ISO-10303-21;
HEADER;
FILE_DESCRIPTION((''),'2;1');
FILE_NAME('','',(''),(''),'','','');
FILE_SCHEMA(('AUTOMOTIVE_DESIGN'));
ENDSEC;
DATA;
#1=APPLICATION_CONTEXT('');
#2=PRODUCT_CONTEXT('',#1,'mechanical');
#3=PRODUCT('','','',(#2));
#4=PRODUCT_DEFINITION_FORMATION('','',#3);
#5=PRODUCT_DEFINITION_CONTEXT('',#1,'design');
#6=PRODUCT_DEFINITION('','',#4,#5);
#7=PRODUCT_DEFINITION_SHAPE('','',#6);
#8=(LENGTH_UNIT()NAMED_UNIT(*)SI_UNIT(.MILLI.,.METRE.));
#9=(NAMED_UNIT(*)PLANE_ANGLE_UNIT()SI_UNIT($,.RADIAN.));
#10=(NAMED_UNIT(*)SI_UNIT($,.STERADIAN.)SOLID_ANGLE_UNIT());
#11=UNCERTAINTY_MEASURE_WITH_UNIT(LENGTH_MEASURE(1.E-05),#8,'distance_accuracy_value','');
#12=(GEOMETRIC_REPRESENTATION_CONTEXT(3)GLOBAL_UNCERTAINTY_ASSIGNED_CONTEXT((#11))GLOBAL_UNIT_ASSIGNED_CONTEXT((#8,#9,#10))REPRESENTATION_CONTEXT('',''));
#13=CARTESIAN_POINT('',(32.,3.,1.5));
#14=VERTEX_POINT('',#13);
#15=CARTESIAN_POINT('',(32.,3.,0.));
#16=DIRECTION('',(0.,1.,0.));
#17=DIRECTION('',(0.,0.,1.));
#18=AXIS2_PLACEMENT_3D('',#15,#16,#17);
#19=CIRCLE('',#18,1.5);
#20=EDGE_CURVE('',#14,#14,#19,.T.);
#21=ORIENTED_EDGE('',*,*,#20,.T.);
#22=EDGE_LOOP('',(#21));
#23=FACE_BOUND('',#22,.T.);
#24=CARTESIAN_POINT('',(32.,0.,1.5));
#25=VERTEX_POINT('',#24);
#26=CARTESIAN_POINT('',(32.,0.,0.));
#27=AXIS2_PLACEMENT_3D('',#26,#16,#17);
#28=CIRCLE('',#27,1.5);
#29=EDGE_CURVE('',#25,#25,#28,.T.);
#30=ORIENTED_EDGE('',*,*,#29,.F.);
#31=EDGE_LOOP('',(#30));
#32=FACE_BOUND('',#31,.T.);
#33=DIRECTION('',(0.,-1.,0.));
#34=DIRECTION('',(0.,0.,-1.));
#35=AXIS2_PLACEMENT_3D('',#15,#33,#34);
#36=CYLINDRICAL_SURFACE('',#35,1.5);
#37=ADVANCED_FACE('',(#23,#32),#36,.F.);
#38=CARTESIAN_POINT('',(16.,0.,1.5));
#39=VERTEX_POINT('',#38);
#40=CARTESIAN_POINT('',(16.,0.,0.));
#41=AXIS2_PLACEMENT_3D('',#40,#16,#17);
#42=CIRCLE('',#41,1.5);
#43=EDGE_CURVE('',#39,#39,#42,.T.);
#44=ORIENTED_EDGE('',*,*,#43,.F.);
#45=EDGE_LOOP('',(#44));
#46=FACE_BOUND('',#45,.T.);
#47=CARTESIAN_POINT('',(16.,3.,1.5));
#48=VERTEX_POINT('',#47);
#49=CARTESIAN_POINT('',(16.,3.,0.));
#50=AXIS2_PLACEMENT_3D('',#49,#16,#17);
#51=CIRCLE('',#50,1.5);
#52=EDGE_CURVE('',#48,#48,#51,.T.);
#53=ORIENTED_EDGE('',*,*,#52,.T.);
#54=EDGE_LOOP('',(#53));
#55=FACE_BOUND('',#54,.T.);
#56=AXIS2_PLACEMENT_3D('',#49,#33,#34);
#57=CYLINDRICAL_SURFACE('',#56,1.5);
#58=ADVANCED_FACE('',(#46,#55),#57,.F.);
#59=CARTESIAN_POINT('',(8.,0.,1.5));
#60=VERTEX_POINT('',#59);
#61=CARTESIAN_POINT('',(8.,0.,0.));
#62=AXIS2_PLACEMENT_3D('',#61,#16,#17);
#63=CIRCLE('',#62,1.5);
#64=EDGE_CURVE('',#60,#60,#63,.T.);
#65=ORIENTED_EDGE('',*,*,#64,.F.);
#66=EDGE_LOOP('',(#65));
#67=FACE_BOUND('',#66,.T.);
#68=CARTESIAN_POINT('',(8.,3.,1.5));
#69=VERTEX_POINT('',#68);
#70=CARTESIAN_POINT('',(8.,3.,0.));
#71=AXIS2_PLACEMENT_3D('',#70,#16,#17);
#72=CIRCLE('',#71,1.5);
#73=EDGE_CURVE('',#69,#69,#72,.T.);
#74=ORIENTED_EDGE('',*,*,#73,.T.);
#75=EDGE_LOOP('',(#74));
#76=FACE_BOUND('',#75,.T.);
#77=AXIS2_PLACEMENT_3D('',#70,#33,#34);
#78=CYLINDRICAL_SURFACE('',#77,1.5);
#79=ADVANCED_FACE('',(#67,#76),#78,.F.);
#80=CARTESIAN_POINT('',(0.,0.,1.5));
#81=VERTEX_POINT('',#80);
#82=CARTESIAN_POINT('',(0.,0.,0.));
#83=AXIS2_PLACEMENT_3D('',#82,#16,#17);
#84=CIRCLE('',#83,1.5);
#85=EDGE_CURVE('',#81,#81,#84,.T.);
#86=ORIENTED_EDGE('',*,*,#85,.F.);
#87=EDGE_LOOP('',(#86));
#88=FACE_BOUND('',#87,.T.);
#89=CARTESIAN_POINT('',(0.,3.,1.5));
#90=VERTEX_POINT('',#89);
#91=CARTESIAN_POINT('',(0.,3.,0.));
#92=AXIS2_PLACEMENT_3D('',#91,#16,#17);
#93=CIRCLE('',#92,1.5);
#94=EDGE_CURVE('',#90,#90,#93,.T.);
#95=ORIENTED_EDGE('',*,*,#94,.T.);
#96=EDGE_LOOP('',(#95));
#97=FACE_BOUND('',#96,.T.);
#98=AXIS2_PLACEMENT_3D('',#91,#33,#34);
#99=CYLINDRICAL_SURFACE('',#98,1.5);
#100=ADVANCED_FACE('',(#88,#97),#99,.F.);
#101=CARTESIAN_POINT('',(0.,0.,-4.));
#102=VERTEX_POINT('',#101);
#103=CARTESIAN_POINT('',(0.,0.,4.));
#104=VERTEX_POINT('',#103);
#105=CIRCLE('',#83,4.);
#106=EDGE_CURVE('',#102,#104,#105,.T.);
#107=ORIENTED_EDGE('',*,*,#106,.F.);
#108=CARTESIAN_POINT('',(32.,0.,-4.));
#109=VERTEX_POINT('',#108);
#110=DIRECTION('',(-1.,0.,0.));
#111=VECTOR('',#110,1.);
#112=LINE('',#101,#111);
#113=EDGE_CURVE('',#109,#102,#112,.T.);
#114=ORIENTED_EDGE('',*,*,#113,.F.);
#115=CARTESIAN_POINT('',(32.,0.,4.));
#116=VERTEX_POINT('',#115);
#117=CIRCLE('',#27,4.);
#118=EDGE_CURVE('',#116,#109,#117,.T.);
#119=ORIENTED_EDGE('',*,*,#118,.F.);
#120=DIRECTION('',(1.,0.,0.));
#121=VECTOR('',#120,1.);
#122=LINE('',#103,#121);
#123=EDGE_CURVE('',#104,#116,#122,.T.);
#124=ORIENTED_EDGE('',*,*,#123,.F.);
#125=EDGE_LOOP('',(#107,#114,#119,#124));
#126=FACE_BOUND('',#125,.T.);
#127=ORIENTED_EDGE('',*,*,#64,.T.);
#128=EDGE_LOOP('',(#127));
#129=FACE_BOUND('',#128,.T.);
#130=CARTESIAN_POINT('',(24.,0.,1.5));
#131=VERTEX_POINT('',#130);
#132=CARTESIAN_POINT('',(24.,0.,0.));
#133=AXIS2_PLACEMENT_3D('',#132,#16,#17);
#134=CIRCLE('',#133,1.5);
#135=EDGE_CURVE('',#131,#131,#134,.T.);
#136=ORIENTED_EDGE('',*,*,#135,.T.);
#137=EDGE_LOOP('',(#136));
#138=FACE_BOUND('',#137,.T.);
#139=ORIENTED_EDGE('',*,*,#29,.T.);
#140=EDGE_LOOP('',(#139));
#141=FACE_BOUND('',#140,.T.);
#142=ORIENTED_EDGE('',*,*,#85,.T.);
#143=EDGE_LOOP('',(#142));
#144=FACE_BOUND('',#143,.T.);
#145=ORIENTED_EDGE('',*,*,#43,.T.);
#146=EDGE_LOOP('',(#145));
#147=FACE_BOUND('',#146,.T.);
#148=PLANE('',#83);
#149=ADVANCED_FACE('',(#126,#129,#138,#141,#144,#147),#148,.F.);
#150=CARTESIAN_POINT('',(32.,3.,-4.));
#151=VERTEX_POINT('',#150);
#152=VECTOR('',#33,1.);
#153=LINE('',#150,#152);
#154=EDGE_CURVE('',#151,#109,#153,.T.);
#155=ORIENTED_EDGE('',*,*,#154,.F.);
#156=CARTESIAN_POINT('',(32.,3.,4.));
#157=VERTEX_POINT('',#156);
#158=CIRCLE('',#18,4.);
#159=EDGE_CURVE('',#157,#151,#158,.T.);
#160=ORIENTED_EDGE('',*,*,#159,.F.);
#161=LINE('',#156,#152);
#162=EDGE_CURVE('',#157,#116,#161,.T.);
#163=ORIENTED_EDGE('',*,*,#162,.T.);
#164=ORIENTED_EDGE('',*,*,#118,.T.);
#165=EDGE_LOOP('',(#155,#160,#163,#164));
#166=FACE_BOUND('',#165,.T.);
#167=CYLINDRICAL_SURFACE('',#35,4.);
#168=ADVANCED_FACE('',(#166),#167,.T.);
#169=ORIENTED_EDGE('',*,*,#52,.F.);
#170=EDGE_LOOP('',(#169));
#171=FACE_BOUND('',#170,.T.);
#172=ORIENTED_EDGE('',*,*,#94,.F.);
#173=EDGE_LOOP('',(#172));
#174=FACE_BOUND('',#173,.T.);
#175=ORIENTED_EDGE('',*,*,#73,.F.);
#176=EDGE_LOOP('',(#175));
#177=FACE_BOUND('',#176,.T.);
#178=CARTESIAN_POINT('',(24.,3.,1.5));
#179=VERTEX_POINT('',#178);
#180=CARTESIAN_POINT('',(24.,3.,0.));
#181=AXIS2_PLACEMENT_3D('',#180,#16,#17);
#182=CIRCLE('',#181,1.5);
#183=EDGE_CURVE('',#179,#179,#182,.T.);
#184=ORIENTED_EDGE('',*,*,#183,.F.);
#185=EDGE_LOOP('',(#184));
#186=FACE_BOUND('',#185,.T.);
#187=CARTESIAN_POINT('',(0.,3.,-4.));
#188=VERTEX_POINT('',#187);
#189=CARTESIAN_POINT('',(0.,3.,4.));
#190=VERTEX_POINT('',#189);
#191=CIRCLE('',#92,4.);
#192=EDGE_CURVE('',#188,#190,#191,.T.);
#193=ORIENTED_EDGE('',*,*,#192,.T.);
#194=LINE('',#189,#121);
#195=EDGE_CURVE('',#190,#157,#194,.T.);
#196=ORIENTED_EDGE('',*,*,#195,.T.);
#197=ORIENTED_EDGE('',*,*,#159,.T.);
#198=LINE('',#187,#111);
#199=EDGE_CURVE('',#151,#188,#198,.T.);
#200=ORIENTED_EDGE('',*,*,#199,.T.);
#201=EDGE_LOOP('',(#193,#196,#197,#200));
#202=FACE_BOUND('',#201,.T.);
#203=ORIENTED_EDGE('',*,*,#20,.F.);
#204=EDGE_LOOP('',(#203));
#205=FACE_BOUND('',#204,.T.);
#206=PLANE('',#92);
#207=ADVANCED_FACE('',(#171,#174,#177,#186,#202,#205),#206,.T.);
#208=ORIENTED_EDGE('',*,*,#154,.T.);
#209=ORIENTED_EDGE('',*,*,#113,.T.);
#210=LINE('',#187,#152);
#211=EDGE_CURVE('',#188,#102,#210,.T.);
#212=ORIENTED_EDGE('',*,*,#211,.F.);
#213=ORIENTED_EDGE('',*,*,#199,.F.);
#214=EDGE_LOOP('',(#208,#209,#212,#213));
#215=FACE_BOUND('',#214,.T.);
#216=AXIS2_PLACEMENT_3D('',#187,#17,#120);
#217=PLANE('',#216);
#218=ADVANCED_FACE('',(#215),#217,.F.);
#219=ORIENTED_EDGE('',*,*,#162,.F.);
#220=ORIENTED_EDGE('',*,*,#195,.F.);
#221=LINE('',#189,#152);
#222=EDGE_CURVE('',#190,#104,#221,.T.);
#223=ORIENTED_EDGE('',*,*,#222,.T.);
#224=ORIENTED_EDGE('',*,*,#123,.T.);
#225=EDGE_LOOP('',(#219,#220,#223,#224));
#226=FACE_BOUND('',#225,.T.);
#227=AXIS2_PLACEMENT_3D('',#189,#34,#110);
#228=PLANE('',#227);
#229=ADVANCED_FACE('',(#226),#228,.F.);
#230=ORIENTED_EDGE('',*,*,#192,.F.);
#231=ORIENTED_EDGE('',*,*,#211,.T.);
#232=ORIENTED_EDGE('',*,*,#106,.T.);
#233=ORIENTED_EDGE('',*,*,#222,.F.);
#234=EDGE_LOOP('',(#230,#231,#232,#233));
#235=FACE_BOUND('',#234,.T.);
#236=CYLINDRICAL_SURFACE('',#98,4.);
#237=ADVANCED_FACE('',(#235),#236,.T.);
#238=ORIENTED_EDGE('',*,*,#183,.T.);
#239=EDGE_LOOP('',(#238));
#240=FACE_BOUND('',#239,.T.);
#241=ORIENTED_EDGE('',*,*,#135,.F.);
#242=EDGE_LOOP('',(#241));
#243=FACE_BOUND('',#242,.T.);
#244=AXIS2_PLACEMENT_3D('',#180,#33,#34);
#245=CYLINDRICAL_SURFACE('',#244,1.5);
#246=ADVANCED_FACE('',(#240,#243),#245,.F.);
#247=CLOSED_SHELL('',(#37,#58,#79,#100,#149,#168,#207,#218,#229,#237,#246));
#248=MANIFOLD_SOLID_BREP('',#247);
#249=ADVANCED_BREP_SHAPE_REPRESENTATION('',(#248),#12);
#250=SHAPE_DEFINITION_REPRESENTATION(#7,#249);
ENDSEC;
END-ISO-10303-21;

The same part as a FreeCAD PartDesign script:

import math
import FreeCAD as App
import Part
import Sketcher
from FreeCAD import Vector

doc = App.newDocument("Part")
body = doc.addObject("PartDesign::Body", "Body")

sketch1 = body.newObject("Sketcher::SketchObject", "Sketch")
sketch1.AttachmentSupport = (doc.getObject("XZ_Plane"), [""])
sketch1.MapMode = "FlatFace"
sketch1.addGeometry(Part.Circle(Vector(40, 0, 0), Vector(0, 0, 1), 1.5), False)
sketch1.addConstraint([
    Sketcher.Constraint("PointOnObject", 0, 3, -1),
    Sketcher.Constraint("Diameter", 0, 3.0),
    Sketcher.Constraint("DistanceX", -1, 1, 0, 3, 40.0),
])
pad1 = body.newObject("PartDesign::Pad", "Pad")
pad1.Profile = sketch1
pad1.Length = 3
pad1.Reversed = True
body2 = doc.addObject("PartDesign::Body", "Body001")

sketch2 = body2.newObject("Sketcher::SketchObject", "Sketch001")
sketch2.AttachmentSupport = (doc.getObject("XZ_Plane001"), [""])
sketch2.MapMode = "FlatFace"
sketch2.addGeometry(Part.Circle(Vector(48, 0, 0), Vector(0, 0, 1), 1.5), False)
sketch2.addConstraint([
    Sketcher.Constraint("PointOnObject", 0, 3, -1),
    Sketcher.Constraint("Diameter", 0, 3.0),
    Sketcher.Constraint("DistanceX", -1, 1, 0, 3, 48.0),
])
pad2 = body2.newObject("PartDesign::Pad", "Pad001")
pad2.Profile = sketch2
pad2.Length = 3
pad2.Reversed = True
body3 = doc.addObject("PartDesign::Body", "Body002")

sketch3 = body3.newObject("Sketcher::SketchObject", "Sketch002")
sketch3.AttachmentSupport = (doc.getObject("XZ_Plane002"), [""])
sketch3.MapMode = "FlatFace"
sketch3.addGeometry(Part.Circle(Vector(56, 0, 0), Vector(0, 0, 1), 1.5), False)
sketch3.addConstraint([
    Sketcher.Constraint("PointOnObject", 0, 3, -1),
    Sketcher.Constraint("Diameter", 0, 3.0),
    Sketcher.Constraint("DistanceX", -1, 1, 0, 3, 56.0),
])
pad3 = body3.newObject("PartDesign::Pad", "Pad002")
pad3.Profile = sketch3
pad3.Length = 3
pad3.Reversed = True
body4 = doc.addObject("PartDesign::Body", "Body003")

sketch4 = body4.newObject("Sketcher::SketchObject", "Sketch003")
sketch4.AttachmentSupport = (doc.getObject("XZ_Plane003"), [""])
sketch4.MapMode = "FlatFace"
sketch4.addGeometry(Part.Circle(Vector(64, 0, 0), Vector(0, 0, 1), 1.5), False)
sketch4.addConstraint([
    Sketcher.Constraint("PointOnObject", 0, 3, -1),
    Sketcher.Constraint("Diameter", 0, 3.0),
    Sketcher.Constraint("DistanceX", -1, 1, 0, 3, 64.0),
])
pad4 = body4.newObject("PartDesign::Pad", "Pad003")
pad4.Profile = sketch4
pad4.Length = 3
pad4.Reversed = True
body5 = doc.addObject("PartDesign::Body", "Body004")

sketch5 = body5.newObject("Sketcher::SketchObject", "Sketch004")
sketch5.AttachmentSupport = (doc.getObject("XZ_Plane004"), [""])
sketch5.MapMode = "FlatFace"
sketch5.addGeometry(Part.Circle(Vector(72, 0, 0), Vector(0, 0, 1), 1.5), False)
sketch5.addConstraint([
    Sketcher.Constraint("PointOnObject", 0, 3, -1),
    Sketcher.Constraint("Diameter", 0, 3.0),
    Sketcher.Constraint("DistanceX", -1, 1, 0, 3, 72.0),
])
pad5 = body5.newObject("PartDesign::Pad", "Pad004")
pad5.Profile = sketch5
pad5.Length = 3
pad5.Reversed = True
body6 = doc.addObject("PartDesign::Body", "Body005")

sketch6 = body6.newObject("Sketcher::SketchObject", "Sketch005")
sketch6.AttachmentSupport = (doc.getObject("XZ_Plane005"), [""])
sketch6.MapMode = "FlatFace"
sketch6.addGeometry(Part.Circle(Vector(80, 0, 0), Vector(0, 0, 1), 1.5), False)
sketch6.addConstraint([
    Sketcher.Constraint("PointOnObject", 0, 3, -1),
    Sketcher.Constraint("Diameter", 0, 3.0),
    Sketcher.Constraint("DistanceX", -1, 1, 0, 3, 80.0),
])
pad6 = body6.newObject("PartDesign::Pad", "Pad005")
pad6.Profile = sketch6
pad6.Length = 3
pad6.Reversed = True
body7 = doc.addObject("PartDesign::Body", "Body006")

sketch7 = body7.newObject("Sketcher::SketchObject", "Sketch006")
sketch7.AttachmentSupport = (doc.getObject("XZ_Plane006"), [""])
sketch7.MapMode = "FlatFace"
sketch7.addGeometry([
    Part.LineSegment(Vector(32, -4, 0), Vector(0, -4, 0)),
    Part.ArcOfCircle(Part.Circle(Vector(0, 0, 0), Vector(0, 0, 1), 4), math.radians(90), math.radians(270)),
    Part.LineSegment(Vector(0, 4, 0), Vector(32, 4, 0)),
    Part.ArcOfCircle(Part.Circle(Vector(32, 0, 0), Vector(0, 0, 1), 4), math.radians(-90), math.radians(90)),
    Part.Circle(Vector(32, 0, 0), Vector(0, 0, 1), 1.5),
    Part.Circle(Vector(24, 0, 0), Vector(0, 0, 1), 1.5),
    Part.Circle(Vector(16, 0, 0), Vector(0, 0, 1), 1.5),
    Part.Circle(Vector(8, 0, 0), Vector(0, 0, 1), 1.5),
    Part.Circle(Vector(0, 0, 0), Vector(0, 0, 1), 1.5),
], False)
sketch7.addConstraint([
    Sketcher.Constraint("Tangent", 0, 2, 1, 2),
    Sketcher.Constraint("Tangent", 1, 1, 2, 1),
    Sketcher.Constraint("Tangent", 2, 2, 3, 2),
    Sketcher.Constraint("Tangent", 3, 1, 0, 1),
    Sketcher.Constraint("Horizontal", 0),
    Sketcher.Constraint("Horizontal", 2),
    Sketcher.Constraint("Coincident", 1, 3, -1, 1),
    Sketcher.Constraint("Coincident", 8, 3, -1, 1),
    Sketcher.Constraint("Coincident", 4, 3, 3, 3),
    Sketcher.Constraint("Equal", 4, 5),
    Sketcher.Constraint("Equal", 5, 6),
    Sketcher.Constraint("Equal", 6, 7),
    Sketcher.Constraint("Equal", 7, 8),
    Sketcher.Constraint("PointOnObject", 5, 3, -1),
    Sketcher.Constraint("PointOnObject", 6, 3, -1),
    Sketcher.Constraint("PointOnObject", 7, 3, -1),
    Sketcher.Constraint("Diameter", 4, 3.0),
    Sketcher.Constraint("Radius", 1, 4.0),
    Sketcher.Constraint("DistanceX", 0, 2, 0, 1, 32.0),
    Sketcher.Constraint("DistanceX", -1, 1, 5, 3, 24.0),
    Sketcher.Constraint("DistanceX", -1, 1, 6, 3, 16.0),
    Sketcher.Constraint("DistanceX", -1, 1, 7, 3, 8.0),
])
pad7 = body7.newObject("PartDesign::Pad", "Pad006")
pad7.Profile = sketch7
pad7.Length = 3
pad7.Reversed = True
body8 = doc.addObject("PartDesign::Body", "Body007")

sketch8 = body8.newObject("Sketcher::SketchObject", "Sketch007")
sketch8.AttachmentSupport = (doc.getObject("XZ_Plane007"), [""])
sketch8.MapMode = "FlatFace"
sketch8.addGeometry([
    Part.LineSegment(Vector(86, -3, 0), Vector(86, 5, 0)),
    Part.LineSegment(Vector(86, 5, 0), Vector(37, 5, 0)),
    Part.LineSegment(Vector(37, 5, 0), Vector(37, -3, 0)),
    Part.LineSegment(Vector(37, -3, 0), Vector(86, -3, 0)),
], False)
sketch8.addConstraint([
    Sketcher.Constraint("Coincident", 0, 2, 1, 1),
    Sketcher.Constraint("Coincident", 1, 2, 2, 1),
    Sketcher.Constraint("Coincident", 2, 2, 3, 1),
    Sketcher.Constraint("Coincident", 3, 2, 0, 1),
    Sketcher.Constraint("Vertical", 0),
    Sketcher.Constraint("Horizontal", 1),
    Sketcher.Constraint("Vertical", 2),
    Sketcher.Constraint("Horizontal", 3),
    Sketcher.Constraint("DistanceX", 1, 2, 1, 1, 48.45432),
    Sketcher.Constraint("DistanceY", 0, 1, 0, 2, 7.747522),
    Sketcher.Constraint("DistanceX", -1, 1, 0, 2, 85.728209),
    Sketcher.Constraint("DistanceY", -1, 1, 0, 2, 4.61963),
])
pad8 = body8.newObject("PartDesign::Pad", "Pad007")
pad8.Profile = sketch8
pad8.Length = 10
pad8.Reversed = True
doc.recompute()

body9 = doc.addObject("PartDesign::Body", "Body008")
body9.BaseFeature = body8
boolean = body.newObject("PartDesign::Boolean", "Boolean")
boolean.Type = "Cut"
boolean.addObjects([body9])
doc.recompute()

body10 = doc.addObject("PartDesign::Body", "Body009")
body10.BaseFeature = body8
boolean2 = body2.newObject("PartDesign::Boolean", "Boolean001")
boolean2.Type = "Cut"
boolean2.addObjects([body10])
doc.recompute()

body11 = doc.addObject("PartDesign::Body", "Body010")
body11.BaseFeature = body8
boolean3 = body3.newObject("PartDesign::Boolean", "Boolean002")
boolean3.Type = "Cut"
boolean3.addObjects([body11])
doc.recompute()

body12 = doc.addObject("PartDesign::Body", "Body011")
body12.BaseFeature = body8
boolean4 = body4.newObject("PartDesign::Boolean", "Boolean003")
boolean4.Type = "Cut"
boolean4.addObjects([body12])
doc.recompute()

body13 = doc.addObject("PartDesign::Body", "Body012")
body13.BaseFeature = body8
boolean5 = body5.newObject("PartDesign::Boolean", "Boolean004")
boolean5.Type = "Cut"
boolean5.addObjects([body13])
doc.recompute()

boolean6 = body6.newObject("PartDesign::Boolean", "Boolean005")
boolean6.Type = "Cut"
boolean6.addObjects([body8])

doc.recompute()
